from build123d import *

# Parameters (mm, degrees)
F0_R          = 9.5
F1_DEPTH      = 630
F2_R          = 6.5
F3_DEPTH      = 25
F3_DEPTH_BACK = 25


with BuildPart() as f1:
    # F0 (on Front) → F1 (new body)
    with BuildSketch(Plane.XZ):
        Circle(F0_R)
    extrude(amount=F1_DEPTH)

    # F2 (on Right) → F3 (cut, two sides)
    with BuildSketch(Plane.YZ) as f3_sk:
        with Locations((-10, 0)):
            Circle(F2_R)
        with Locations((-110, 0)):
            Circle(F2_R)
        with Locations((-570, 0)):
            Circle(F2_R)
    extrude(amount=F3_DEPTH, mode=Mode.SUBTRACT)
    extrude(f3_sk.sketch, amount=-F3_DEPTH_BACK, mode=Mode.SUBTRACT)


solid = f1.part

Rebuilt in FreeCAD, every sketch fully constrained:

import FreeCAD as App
import Part
import Sketcher

V = App.Vector

doc = App.newDocument("Part")
body = doc.addObject("PartDesign::Body", "Body")

# Sketch on XZ plane
sketch1 = doc.addObject("Sketcher::SketchObject", "Sketch")
body.addObject(sketch1)
sketch1.AttachmentSupport = (doc.XZ_Plane, [""])
sketch1.MapMode = "FlatFace"
sketch1.addGeometry(Part.Circle(V(0, 0, 0), V(0, 0, 1), 10), False)
sketch1.addConstraint(Sketcher.Constraint("Coincident", 0, 3, -1, 1))
sketch1.addConstraint(Sketcher.Constraint("Diameter", 0, 19.0))
pad1 = doc.addObject("PartDesign::Pad", "Pad")
body.addObject(pad1)
pad1.Profile = sketch1
pad1.Length = 630

# Sketch on YZ plane
sketch2 = doc.addObject("Sketcher::SketchObject", "Sketch001")
body.addObject(sketch2)
sketch2.AttachmentSupport = (doc.YZ_Plane, [""])
sketch2.MapMode = "FlatFace"
sketch2.addGeometry(Part.Circle(V(-10, 0, 0), V(0, 0, 1), 6), False)
sketch2.addGeometry(Part.Circle(V(-110, 0, 0), V(0, 0, 1), 6), False)
sketch2.addGeometry(Part.Circle(V(-570, 0, 0), V(0, 0, 1), 6), False)
sketch2.addConstraint(Sketcher.Constraint("Equal", 0, 1))
sketch2.addConstraint(Sketcher.Constraint("Equal", 1, 2))
sketch2.addConstraint(Sketcher.Constraint("PointOnObject", 0, 3, -1))
sketch2.addConstraint(Sketcher.Constraint("PointOnObject", 1, 3, -1))
sketch2.addConstraint(Sketcher.Constraint("PointOnObject", 2, 3, -1))
sketch2.addConstraint(Sketcher.Constraint("Diameter", 0, 13.0))
sketch2.addConstraint(Sketcher.Constraint("DistanceX", 0, 3, -1, 1, 10.0))
sketch2.addConstraint(Sketcher.Constraint("DistanceX", 1, 3, -1, 1, 110.0))
sketch2.addConstraint(Sketcher.Constraint("DistanceX", 2, 3, -1, 1, 570.0))
pocket1 = doc.addObject("PartDesign::Pocket", "Pocket")
body.addObject(pocket1)
pocket1.Profile = sketch2
pocket1.Type = "ThroughAll"
pocket1.Midplane = True

doc.recompute()
